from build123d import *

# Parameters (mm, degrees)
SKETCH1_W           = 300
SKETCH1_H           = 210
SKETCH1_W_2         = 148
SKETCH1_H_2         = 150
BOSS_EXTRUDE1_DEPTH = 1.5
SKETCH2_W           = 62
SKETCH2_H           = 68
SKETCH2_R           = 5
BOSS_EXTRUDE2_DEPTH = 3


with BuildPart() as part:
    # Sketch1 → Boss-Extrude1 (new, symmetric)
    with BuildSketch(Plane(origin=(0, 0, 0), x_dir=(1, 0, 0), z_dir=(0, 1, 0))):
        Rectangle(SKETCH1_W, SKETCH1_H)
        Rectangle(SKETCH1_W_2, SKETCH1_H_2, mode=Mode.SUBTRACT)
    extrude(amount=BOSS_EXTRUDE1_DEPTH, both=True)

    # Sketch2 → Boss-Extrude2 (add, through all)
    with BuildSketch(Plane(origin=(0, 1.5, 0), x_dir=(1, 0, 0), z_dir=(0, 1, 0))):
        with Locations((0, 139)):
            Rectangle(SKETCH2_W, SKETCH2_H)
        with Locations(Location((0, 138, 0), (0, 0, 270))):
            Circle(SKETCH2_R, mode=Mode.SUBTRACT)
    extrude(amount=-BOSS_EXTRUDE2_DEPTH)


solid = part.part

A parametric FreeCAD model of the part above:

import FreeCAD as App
import Part
import Sketcher

V = App.Vector

doc = App.newDocument("Part")
body = doc.addObject("PartDesign::Body", "Body")

sketch1 = doc.addObject("Sketcher::SketchObject", "Sketch")
body.addObject(sketch1)
sketch1.AttachmentSupport = (doc.XZ_Plane, [""])
sketch1.MapMode = "FlatFace"
sketch1.addGeometry([
    Part.LineSegment(V(-150, -105, 0), V(-150, 105, 0)),
    Part.LineSegment(V(-150, 105, 0), V(150, 105, 0)),
    Part.LineSegment(V(150, 105, 0), V(150, -105, 0)),
    Part.LineSegment(V(150, -105, 0), V(-150, -105, 0)),
    Part.LineSegment(V(74, 75, 0), V(-74, 75, 0)),
    Part.LineSegment(V(-74, 75, 0), V(-74, -75, 0)),
    Part.LineSegment(V(-74, -75, 0), V(74, -75, 0)),
    Part.LineSegment(V(74, -75, 0), V(74, 75, 0)),
], False)
sketch1.addConstraint([
    Sketcher.Constraint("Coincident", 0, 2, 1, 1),
    Sketcher.Constraint("Coincident", 1, 2, 2, 1),
    Sketcher.Constraint("Coincident", 2, 2, 3, 1),
    Sketcher.Constraint("Coincident", 3, 2, 0, 1),
    Sketcher.Constraint("Coincident", 4, 2, 5, 1),
    Sketcher.Constraint("Coincident", 5, 2, 6, 1),
    Sketcher.Constraint("Coincident", 6, 2, 7, 1),
    Sketcher.Constraint("Coincident", 7, 2, 4, 1),
    Sketcher.Constraint("Vertical", 0),
    Sketcher.Constraint("Horizontal", 1),
    Sketcher.Constraint("Vertical", 2),
    Sketcher.Constraint("Horizontal", 3),
    Sketcher.Constraint("Horizontal", 4),
    Sketcher.Constraint("Vertical", 5),
    Sketcher.Constraint("Horizontal", 6),
    Sketcher.Constraint("Vertical", 7),
    Sketcher.Constraint("Symmetric", 0, 2, 2, 2, -1, 1),
    Sketcher.Constraint("Symmetric", 4, 2, 6, 2, -1, 1),
    Sketcher.Constraint("DistanceX", 1, 1, 1, 2, 300.0),
    Sketcher.Constraint("DistanceX", 4, 2, 4, 1, 148.0),
    Sketcher.Constraint("DistanceY", 0, 1, 0, 2, 210.0),
    Sketcher.Constraint("DistanceY", 5, 2, 5, 1, 150.0),
])
pad1 = doc.addObject("PartDesign::Pad", "Pad")
body.addObject(pad1)
pad1.Profile = sketch1
pad1.Length = 3
pad1.Midplane = True

sketch2 = doc.addObject("Sketcher::SketchObject", "Sketch001")
body.addObject(sketch2)
sketch2.AttachmentSupport = (doc.XZ_Plane, [""])
sketch2.MapMode = "FlatFace"
sketch2.AttachmentOffset = App.Placement(V(0, 0, -1.5), App.Rotation())
sketch2.addGeometry([
    Part.LineSegment(V(-31, -173, 0), V(-31, -105, 0)),
    Part.LineSegment(V(-31, -105, 0), V(31, -105, 0)),
    Part.LineSegment(V(31, -105, 0), V(31, -173, 0)),
    Part.LineSegment(V(31, -173, 0), V(-31, -173, 0)),
    Part.Circle(V(0, -138, 0), V(0, 0, 1), 5),
], False)
sketch2.addConstraint([
    Sketcher.Constraint("Coincident", 0, 2, 1, 1),
    Sketcher.Constraint("Coincident", 1, 2, 2, 1),
    Sketcher.Constraint("Coincident", 2, 2, 3, 1),
    Sketcher.Constraint("Coincident", 3, 2, 0, 1),
    Sketcher.Constraint("Vertical", 0),
    Sketcher.Constraint("Horizontal", 1),
    Sketcher.Constraint("Vertical", 2),
    Sketcher.Constraint("Horizontal", 3),
    Sketcher.Constraint("PointOnObject", 4, 3, -2),
    Sketcher.Constraint("Diameter", 4, 10.0),
    Sketcher.Constraint("DistanceX", 1, 1, 1, 2, 62.0),
    Sketcher.Constraint("DistanceY", 0, 1, 0, 2, 68.0),
    Sketcher.Constraint("DistanceY", 4, 3, -1, 1, 138.0),
    Sketcher.Constraint("DistanceX", 0, 2, -1, 1, 31.0),
    Sketcher.Constraint("DistanceY", 0, 2, -1, 1, 105.0),
])
pad2 = doc.addObject("PartDesign::Pad", "Pad001")
body.addObject(pad2)
pad2.Profile = sketch2
pad2.Length = 3

doc.recompute()
